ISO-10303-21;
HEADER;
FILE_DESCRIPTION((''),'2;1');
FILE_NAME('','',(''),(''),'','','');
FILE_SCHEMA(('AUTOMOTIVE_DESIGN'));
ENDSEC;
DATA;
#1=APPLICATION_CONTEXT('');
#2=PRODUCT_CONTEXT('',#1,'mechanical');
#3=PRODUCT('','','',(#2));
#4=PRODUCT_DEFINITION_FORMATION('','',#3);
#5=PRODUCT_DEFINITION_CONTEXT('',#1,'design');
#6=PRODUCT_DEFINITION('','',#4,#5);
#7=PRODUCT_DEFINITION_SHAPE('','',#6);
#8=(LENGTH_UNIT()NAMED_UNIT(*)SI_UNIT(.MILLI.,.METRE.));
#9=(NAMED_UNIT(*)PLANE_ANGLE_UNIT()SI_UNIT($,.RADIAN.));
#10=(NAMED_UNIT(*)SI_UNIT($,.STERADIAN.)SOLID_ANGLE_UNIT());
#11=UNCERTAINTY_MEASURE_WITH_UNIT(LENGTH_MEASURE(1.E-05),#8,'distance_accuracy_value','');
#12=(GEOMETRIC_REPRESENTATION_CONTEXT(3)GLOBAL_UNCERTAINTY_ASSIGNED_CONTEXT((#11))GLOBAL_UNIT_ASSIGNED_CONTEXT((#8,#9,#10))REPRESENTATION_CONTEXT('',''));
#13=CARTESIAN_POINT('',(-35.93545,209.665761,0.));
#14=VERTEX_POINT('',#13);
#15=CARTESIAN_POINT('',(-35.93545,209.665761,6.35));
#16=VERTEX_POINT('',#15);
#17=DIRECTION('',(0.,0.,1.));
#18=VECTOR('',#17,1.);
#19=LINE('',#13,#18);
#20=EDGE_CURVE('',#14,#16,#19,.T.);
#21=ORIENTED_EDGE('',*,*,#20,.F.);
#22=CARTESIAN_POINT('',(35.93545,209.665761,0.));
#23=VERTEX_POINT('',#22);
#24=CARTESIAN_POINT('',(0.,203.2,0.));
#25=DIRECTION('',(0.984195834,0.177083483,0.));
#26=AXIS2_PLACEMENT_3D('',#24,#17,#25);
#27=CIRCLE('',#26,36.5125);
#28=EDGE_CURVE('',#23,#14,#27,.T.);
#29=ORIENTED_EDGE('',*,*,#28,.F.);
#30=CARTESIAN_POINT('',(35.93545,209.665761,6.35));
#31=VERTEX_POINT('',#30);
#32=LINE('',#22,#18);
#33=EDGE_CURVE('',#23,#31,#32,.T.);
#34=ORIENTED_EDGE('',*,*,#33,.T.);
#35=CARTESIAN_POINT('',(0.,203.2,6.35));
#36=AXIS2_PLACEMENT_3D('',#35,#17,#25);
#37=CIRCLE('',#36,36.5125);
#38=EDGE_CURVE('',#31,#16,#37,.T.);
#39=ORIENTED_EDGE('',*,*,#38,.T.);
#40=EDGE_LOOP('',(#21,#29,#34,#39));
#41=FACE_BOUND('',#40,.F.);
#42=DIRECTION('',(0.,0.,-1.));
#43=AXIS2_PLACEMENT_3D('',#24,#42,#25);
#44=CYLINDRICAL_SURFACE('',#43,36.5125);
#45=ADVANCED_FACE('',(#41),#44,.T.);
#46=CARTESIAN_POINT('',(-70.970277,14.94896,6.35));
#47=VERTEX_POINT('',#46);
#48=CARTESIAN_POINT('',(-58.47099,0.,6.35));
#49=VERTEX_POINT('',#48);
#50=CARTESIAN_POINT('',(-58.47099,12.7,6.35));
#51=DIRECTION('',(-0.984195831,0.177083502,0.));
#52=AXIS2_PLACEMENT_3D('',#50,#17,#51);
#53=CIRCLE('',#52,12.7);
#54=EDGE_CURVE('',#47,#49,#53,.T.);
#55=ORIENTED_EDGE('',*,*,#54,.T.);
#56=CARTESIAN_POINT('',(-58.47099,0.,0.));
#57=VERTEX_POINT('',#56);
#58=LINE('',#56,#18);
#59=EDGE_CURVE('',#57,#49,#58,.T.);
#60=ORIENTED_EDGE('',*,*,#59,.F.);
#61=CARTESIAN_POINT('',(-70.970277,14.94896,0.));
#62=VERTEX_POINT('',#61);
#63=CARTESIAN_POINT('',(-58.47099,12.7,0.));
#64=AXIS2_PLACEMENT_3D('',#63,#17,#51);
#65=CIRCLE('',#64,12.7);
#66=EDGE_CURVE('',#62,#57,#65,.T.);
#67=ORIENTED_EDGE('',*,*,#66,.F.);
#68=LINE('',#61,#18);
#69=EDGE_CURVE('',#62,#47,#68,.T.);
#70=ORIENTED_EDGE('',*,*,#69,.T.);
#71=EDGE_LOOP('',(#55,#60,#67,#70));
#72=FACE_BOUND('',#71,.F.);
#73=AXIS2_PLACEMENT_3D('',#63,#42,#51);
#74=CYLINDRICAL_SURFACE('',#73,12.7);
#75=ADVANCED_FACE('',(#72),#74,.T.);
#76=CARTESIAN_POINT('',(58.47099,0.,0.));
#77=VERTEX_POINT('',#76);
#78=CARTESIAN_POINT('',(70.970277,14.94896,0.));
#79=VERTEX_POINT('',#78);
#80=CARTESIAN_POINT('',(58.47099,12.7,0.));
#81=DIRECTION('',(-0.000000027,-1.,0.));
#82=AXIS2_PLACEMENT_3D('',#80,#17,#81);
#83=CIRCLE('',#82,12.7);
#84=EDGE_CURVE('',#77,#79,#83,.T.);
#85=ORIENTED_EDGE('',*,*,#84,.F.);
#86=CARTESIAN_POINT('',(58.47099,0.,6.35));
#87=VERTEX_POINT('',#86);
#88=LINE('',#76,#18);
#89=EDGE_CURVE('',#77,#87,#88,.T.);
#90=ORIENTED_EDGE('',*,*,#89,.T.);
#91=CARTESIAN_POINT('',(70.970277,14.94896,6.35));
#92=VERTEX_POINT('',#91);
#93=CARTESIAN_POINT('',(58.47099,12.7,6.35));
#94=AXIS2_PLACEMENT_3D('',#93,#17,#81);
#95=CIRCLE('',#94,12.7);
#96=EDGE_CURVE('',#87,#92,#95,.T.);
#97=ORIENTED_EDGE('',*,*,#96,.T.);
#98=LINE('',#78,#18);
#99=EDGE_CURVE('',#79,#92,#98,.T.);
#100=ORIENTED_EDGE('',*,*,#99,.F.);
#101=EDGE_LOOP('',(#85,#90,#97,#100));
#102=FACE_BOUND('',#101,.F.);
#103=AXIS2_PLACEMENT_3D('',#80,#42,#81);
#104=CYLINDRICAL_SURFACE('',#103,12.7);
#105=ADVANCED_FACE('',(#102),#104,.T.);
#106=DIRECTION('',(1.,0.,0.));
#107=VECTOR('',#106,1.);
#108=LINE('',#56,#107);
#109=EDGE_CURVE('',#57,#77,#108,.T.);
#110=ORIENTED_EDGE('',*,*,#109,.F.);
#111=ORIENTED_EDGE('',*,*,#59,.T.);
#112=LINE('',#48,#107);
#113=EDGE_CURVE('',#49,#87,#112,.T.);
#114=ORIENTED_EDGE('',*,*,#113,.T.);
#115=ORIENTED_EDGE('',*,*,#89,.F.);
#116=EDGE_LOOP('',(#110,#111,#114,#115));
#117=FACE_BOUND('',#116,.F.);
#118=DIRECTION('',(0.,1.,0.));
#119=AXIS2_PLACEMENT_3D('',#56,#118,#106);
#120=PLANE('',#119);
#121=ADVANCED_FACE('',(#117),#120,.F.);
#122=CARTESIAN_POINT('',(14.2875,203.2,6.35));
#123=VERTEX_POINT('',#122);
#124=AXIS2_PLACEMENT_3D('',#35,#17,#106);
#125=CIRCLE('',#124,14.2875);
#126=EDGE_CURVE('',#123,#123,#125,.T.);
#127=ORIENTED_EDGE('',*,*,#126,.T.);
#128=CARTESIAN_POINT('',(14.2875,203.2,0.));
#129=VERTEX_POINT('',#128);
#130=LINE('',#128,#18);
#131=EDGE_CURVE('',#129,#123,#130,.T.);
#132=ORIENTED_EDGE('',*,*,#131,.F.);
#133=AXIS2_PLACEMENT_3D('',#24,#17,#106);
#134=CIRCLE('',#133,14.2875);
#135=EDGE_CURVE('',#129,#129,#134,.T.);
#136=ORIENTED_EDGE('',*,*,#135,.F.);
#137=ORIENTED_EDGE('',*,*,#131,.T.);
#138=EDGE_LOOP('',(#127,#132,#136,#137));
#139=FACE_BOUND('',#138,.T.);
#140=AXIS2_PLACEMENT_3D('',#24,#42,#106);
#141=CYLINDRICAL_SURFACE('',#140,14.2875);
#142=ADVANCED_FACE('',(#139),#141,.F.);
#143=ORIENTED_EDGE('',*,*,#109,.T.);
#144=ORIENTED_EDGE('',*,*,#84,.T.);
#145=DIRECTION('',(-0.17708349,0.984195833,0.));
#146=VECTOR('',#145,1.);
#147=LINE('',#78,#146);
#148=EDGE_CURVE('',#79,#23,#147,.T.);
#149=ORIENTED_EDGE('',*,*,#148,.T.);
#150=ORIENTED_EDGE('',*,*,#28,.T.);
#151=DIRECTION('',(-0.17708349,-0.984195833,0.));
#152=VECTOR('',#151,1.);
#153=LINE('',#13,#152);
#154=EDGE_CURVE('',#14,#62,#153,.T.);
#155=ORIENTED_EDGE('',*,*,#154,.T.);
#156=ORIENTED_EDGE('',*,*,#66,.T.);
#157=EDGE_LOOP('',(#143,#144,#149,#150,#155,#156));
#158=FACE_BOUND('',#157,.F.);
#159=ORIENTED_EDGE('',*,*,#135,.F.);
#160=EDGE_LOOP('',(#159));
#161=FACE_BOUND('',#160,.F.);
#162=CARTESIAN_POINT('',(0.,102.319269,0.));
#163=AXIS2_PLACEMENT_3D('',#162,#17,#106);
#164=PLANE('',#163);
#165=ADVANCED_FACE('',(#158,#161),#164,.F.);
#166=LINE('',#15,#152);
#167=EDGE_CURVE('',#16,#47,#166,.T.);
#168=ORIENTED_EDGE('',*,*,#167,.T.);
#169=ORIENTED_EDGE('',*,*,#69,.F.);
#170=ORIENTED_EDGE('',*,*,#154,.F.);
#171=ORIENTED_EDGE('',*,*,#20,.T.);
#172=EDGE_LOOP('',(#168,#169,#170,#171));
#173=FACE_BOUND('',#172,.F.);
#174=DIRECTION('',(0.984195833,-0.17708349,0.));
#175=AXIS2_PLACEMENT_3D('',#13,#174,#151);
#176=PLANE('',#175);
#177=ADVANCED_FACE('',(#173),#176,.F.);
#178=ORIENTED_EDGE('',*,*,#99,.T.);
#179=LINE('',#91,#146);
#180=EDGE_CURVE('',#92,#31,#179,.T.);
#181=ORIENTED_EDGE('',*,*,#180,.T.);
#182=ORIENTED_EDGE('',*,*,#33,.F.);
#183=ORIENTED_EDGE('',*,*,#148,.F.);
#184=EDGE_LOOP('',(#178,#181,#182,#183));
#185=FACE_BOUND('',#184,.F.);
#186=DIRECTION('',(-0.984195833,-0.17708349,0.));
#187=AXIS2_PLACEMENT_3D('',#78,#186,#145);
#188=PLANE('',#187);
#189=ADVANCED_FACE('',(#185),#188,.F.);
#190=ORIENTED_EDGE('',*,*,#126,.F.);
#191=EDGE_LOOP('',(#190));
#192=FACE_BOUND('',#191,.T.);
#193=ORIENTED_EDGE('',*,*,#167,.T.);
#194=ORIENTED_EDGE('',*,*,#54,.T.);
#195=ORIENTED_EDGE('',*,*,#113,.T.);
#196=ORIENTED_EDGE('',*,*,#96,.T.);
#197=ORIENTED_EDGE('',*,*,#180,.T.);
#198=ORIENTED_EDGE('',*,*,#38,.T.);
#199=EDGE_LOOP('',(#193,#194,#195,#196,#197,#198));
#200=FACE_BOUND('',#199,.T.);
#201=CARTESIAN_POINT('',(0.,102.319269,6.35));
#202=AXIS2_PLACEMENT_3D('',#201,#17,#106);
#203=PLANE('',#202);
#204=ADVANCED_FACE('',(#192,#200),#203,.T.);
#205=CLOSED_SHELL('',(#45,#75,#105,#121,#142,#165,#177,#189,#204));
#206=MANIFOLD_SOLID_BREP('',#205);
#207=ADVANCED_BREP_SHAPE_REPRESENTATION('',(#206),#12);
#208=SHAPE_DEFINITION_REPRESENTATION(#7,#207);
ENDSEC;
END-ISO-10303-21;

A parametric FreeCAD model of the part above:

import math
import FreeCAD as App
import Part
import Sketcher
from FreeCAD import Vector
Q = App.Units.Quantity

doc = App.newDocument("Part")
params = doc.addObject("Spreadsheet::Sheet", "Params")
for row, (alias, value) in enumerate([
    ("sketch1_radius", "0.5 in"),
    ("sketch1_diameter", "1.125 in"),
    ("sketch1_radius2", "1.4375 in"),
    ("pad1_length", "0.25 in"),
], start=1):
    params.set(f"A{row}", alias)
    params.set(f"B{row}", "=" + value)
    params.setAlias(f"B{row}", alias)

body = doc.addObject("PartDesign::Body", "Body")

sketch1 = body.newObject("Sketcher::SketchObject", "Sketch")
sketch1.AttachmentSupport = (doc.getObject("XY_Plane"), [""])
sketch1.MapMode = "FlatFace"
sketch1.addGeometry([
    Part.ArcOfCircle(Part.Circle(Vector(-58, 13, 0), Vector(0, 0, 1), 13), math.radians(170), math.radians(270)),
    Part.LineSegment(Vector(-58, 0, 0), Vector(58, 0, 0)),
    Part.ArcOfCircle(Part.Circle(Vector(58, 13, 0), Vector(0, 0, 1), 13), math.radians(-90), math.radians(10)),
    Part.LineSegment(Vector(71, 15, 0), Vector(36, 210, 0)),
    Part.ArcOfCircle(Part.Circle(Vector(0, 203, 0), Vector(0, 0, 1), 37), math.radians(10), math.radians(170)),
    Part.LineSegment(Vector(-36, 210, 0), Vector(-71, 15, 0)),
    Part.Circle(Vector(0, 203, 0), Vector(0, 0, 1), 14),
], False)
sketch1.addConstraint([
    Sketcher.Constraint("Tangent", 0, 2, 1, 1),
    Sketcher.Constraint("Tangent", 1, 2, 2, 1),
    Sketcher.Constraint("Tangent", 2, 2, 3, 1),
    Sketcher.Constraint("Tangent", 3, 2, 4, 1),
    Sketcher.Constraint("Tangent", 4, 2, 5, 1),
    Sketcher.Constraint("Tangent", 5, 2, 0, 1),
    Sketcher.Constraint("Horizontal", 1),
    Sketcher.Constraint("Coincident", 6, 3, 4, 3),
    Sketcher.Constraint("Equal", 0, 2),
    Sketcher.Constraint("Symmetric", 0, 2, 1, 2, -1, 1),
    Sketcher.Constraint("PointOnObject", 4, 3, -2),
    Sketcher.Constraint("Radius", 0, Q("0.5 in")),
    Sketcher.Constraint("Diameter", 6, Q("1.125 in")),
    Sketcher.Constraint("DistanceY", -1, 1, 4, 3, Q("8 in")),
    Sketcher.Constraint("Radius", 4, Q("1.4375 in")),
    Sketcher.Constraint("DistanceX", 1, 1, 1, 2, 116.94198),
])
sketch1.setExpression("Constraints[11]", "Params.sketch1_radius")
sketch1.setExpression("Constraints[12]", "Params.sketch1_diameter")
sketch1.setExpression("Constraints[14]", "Params.sketch1_radius2")
pad1 = body.newObject("PartDesign::Pad", "Pad")
pad1.Profile = sketch1
pad1.setExpression("Length", "Params.pad1_length")

doc.recompute()
